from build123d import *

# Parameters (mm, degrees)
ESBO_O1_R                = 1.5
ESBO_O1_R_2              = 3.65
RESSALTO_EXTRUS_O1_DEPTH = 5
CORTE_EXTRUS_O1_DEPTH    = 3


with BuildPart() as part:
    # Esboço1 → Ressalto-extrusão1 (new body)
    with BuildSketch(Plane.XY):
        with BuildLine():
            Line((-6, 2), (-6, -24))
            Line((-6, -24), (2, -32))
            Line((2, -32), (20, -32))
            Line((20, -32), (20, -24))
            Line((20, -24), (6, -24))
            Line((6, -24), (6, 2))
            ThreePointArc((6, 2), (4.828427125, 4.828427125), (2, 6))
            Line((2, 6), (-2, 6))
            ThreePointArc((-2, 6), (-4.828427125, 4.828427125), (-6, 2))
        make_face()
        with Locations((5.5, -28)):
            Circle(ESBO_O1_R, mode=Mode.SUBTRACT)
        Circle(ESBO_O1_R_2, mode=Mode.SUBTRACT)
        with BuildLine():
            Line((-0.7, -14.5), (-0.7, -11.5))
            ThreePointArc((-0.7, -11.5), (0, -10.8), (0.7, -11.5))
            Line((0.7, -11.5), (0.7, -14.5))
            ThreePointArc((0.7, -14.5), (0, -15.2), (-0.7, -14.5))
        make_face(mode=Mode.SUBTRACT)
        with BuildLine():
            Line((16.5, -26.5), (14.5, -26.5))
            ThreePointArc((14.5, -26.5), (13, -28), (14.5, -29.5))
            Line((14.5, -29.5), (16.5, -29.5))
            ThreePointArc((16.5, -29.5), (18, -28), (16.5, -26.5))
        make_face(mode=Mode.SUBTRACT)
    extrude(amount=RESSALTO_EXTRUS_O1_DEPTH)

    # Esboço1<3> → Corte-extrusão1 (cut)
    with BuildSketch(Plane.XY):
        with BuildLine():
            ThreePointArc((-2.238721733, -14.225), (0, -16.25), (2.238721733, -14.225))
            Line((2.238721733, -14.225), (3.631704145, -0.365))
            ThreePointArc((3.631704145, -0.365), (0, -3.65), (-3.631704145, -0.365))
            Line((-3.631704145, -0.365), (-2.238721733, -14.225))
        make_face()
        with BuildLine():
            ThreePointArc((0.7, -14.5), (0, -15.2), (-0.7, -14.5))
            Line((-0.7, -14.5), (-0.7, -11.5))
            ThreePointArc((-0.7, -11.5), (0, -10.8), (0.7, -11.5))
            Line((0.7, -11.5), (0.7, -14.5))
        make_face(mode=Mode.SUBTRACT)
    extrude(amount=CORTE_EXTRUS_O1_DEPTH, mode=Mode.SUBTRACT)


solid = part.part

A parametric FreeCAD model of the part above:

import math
import FreeCAD as App
import Part
import Sketcher

V = App.Vector

doc = App.newDocument("Part")
body = doc.addObject("PartDesign::Body", "Body")

sketch1 = body.newObject("Sketcher::SketchObject", "Sketch")
sketch1.AttachmentSupport = (doc.getObject("XY_Plane"), [""])
sketch1.MapMode = "FlatFace"
sketch1.addGeometry(Part.LineSegment(V(-6, 2, 0), V(-6, -24, 0)), False)
sketch1.addGeometry(Part.LineSegment(V(-6, -24, 0), V(2, -32, 0)), False)
sketch1.addGeometry(Part.LineSegment(V(2, -32, 0), V(20, -32, 0)), False)
sketch1.addGeometry(Part.LineSegment(V(20, -32, 0), V(20, -24, 0)), False)
sketch1.addGeometry(Part.LineSegment(V(20, -24, 0), V(6, -24, 0)), False)
sketch1.addGeometry(Part.LineSegment(V(6, -24, 0), V(6, 2, 0)), False)
sketch1.addGeometry(Part.ArcOfCircle(Part.Circle(V(2, 2, 0), V(0, 0, 1), 4), math.radians(0), math.radians(90)), False)
sketch1.addGeometry(Part.LineSegment(V(2, 6, 0), V(-2, 6, 0)), False)
sketch1.addGeometry(Part.ArcOfCircle(Part.Circle(V(-2, 2, 0), V(0, 0, 1), 4), math.radians(90), math.radians(180)), False)
sketch1.addGeometry(Part.Circle(V(5.5, -28, 0), V(0, 0, 1), 1.5), False)
sketch1.addGeometry(Part.ArcOfCircle(Part.Circle(V(0, -14.5, 0), V(0, 0, 1), 0.7), math.radians(180), math.radians(360)), False)
sketch1.addGeometry(Part.LineSegment(V(-0.7, -14.5, 0), V(-0.7, -11.5, 0)), False)
sketch1.addGeometry(Part.ArcOfCircle(Part.Circle(V(0, -11.5, 0), V(0, 0, 1), 0.7), math.radians(0), math.radians(180)), False)
sketch1.addGeometry(Part.LineSegment(V(0.7, -11.5, 0), V(0.7, -14.5, 0)), False)
sketch1.addGeometry(Part.LineSegment(V(14.5, -26.5, 0), V(16.5, -26.5, 0)), False)
sketch1.addGeometry(Part.ArcOfCircle(Part.Circle(V(16.5, -28, 0), V(0, 0, 1), 1.5), math.radians(-90), math.radians(90)), False)
sketch1.addGeometry(Part.LineSegment(V(16.5, -29.5, 0), V(14.5, -29.5, 0)), False)
sketch1.addGeometry(Part.ArcOfCircle(Part.Circle(V(14.5, -28, 0), V(0, 0, 1), 1.5), math.radians(90), math.radians(270)), False)
sketch1.addGeometry(Part.Circle(V(0, 0, 0), V(0, 0, 1), 3.6), False)
sketch1.addConstraint(Sketcher.Constraint("Coincident", 0, 2, 1, 1))
sketch1.addConstraint(Sketcher.Constraint("Coincident", 1, 2, 2, 1))
sketch1.addConstraint(Sketcher.Constraint("Coincident", 2, 2, 3, 1))
sketch1.addConstraint(Sketcher.Constraint("Coincident", 3, 2, 4, 1))
sketch1.addConstraint(Sketcher.Constraint("Coincident", 4, 2, 5, 1))
sketch1.addConstraint(Sketcher.Constraint("Tangent", 5, 2, 6, 1))
sketch1.addConstraint(Sketcher.Constraint("Tangent", 6, 2, 7, 1))
sketch1.addConstraint(Sketcher.Constraint("Tangent", 7, 2, 8, 1))
sketch1.addConstraint(Sketcher.Constraint("Tangent", 8, 2, 0, 1))
sketch1.addConstraint(Sketcher.Constraint("Tangent", 10, 1, 11, 1))
sketch1.addConstraint(Sketcher.Constraint("Tangent", 11, 2, 12, 2))
sketch1.addConstraint(Sketcher.Constraint("Tangent", 12, 1, 13, 1))
sketch1.addConstraint(Sketcher.Constraint("Tangent", 13, 2, 10, 2))
sketch1.addConstraint(Sketcher.Constraint("Tangent", 14, 2, 15, 2))
sketch1.addConstraint(Sketcher.Constraint("Tangent", 15, 1, 16, 1))
sketch1.addConstraint(Sketcher.Constraint("Tangent", 16, 2, 17, 2))
sketch1.addConstraint(Sketcher.Constraint("Tangent", 17, 1, 14, 1))
sketch1.addConstraint(Sketcher.Constraint("Vertical", 0))
sketch1.addConstraint(Sketcher.Constraint("Horizontal", 2))
sketch1.addConstraint(Sketcher.Constraint("Vertical", 3))
sketch1.addConstraint(Sketcher.Constraint("Horizontal", 4))
sketch1.addConstraint(Sketcher.Constraint("Vertical", 5))
sketch1.addConstraint(Sketcher.Constraint("Horizontal", 7))
sketch1.addConstraint(Sketcher.Constraint("Vertical", 11))
sketch1.addConstraint(Sketcher.Constraint("Vertical", 13))
sketch1.addConstraint(Sketcher.Constraint("Horizontal", 14))
sketch1.addConstraint(Sketcher.Constraint("Horizontal", 16))
sketch1.addConstraint(Sketcher.Constraint("Coincident", 18, 3, -1, 1))
sketch1.addConstraint(Sketcher.Constraint("Equal", 6, 8))
sketch1.addConstraint(Sketcher.Constraint("Equal", 9, 15))
sketch1.addConstraint(Sketcher.Constraint("Symmetric", 0, 2, 4, 2, -2))
sketch1.addConstraint(Sketcher.Constraint("PointOnObject", 10, 3, -2))
sketch1.addConstraint(Sketcher.Constraint("Horizontal", 9, 3, 15, 3))
sketch1.addConstraint(Sketcher.Constraint("Vertical", 6, 3, 1, 2))
sketch1.addConstraint(Sketcher.Constraint("Diameter", 9, 3.0))
sketch1.addConstraint(Sketcher.Constraint("Radius", 6, 4.0))
sketch1.addConstraint(Sketcher.Constraint("Diameter", 18, 7.3))
sketch1.addConstraint(Sketcher.Constraint("Radius", 10, 0.7))
sketch1.addConstraint(Sketcher.Constraint("DistanceX", 2, 1, 2, 2, 18.0))
sketch1.addConstraint(Sketcher.Constraint("DistanceX", 7, 2, 7, 1, 4.0))
sketch1.addConstraint(Sketcher.Constraint("DistanceX", 14, 1, 14, 2, 2.0))
sketch1.addConstraint(Sketcher.Constraint("DistanceY", 0, 2, 0, 1, 26.0))
sketch1.addConstraint(Sketcher.Constraint("DistanceY", 3, 1, 3, 2, 8.0))
sketch1.addConstraint(Sketcher.Constraint("DistanceY", 11, 1, 11, 2, 3.0))
sketch1.addConstraint(Sketcher.Constraint("DistanceY", -1, 1, 6, 3, 2.0))
sketch1.addConstraint(Sketcher.Constraint("DistanceY", 9, 3, -1, 1, 28.0))
sketch1.addConstraint(Sketcher.Constraint("DistanceX", 9, 3, 15, 3, 11.0))
sketch1.addConstraint(Sketcher.Constraint("DistanceX", -1, 1, 9, 3, 5.5))
sketch1.addConstraint(Sketcher.Constraint("DistanceY", 10, 3, -1, 1, 14.5))
pad1 = body.newObject("PartDesign::Pad", "Pad")
pad1.Profile = sketch1
pad1.Length = 5

sketch2 = body.newObject("Sketcher::SketchObject", "Sketch001")
sketch2.AttachmentSupport = (doc.getObject("XY_Plane"), [""])
sketch2.MapMode = "FlatFace"
sketch2.addGeometry(Part.ArcOfCircle(Part.Circle(V(0, -14, 0), V(0, 0, 1), 2.2), math.radians(-174), math.radians(-6)), False)
sketch2.addGeometry(Part.LineSegment(V(2.2, -14.2, 0), V(3.6, -0.4, 0)), False)
sketch2.addGeometry(Part.ArcOfCircle(Part.Circle(V(0, 0, 0), V(0, 0, 1), 3.6), math.radians(-174), math.radians(-6)), False)
sketch2.addGeometry(Part.LineSegment(V(-3.6, -0.4, 0), V(-2.2, -14.2, 0)), False)
sketch2.addGeometry(Part.LineSegment(V(0.7, -11.5, 0), V(0.7, -14.5, 0)), False)
sketch2.addGeometry(Part.ArcOfCircle(Part.Circle(V(0, -14.5, 0), V(0, 0, 1), 0.7), math.radians(180), math.radians(360)), False)
sketch2.addGeometry(Part.LineSegment(V(-0.7, -14.5, 0), V(-0.7, -11.5, 0)), False)
sketch2.addGeometry(Part.ArcOfCircle(Part.Circle(V(0, -11.5, 0), V(0, 0, 1), 0.7), math.radians(0), math.radians(180)), False)
sketch2.addConstraint(Sketcher.Constraint("Tangent", 0, 2, 1, 1))
sketch2.addConstraint(Sketcher.Constraint("Tangent", 1, 2, 2, 2))
sketch2.addConstraint(Sketcher.Constraint("Tangent", 2, 1, 3, 1))
sketch2.addConstraint(Sketcher.Constraint("Tangent", 3, 2, 0, 1))
sketch2.addConstraint(Sketcher.Constraint("Tangent", 4, 2, 5, 2))
sketch2.addConstraint(Sketcher.Constraint("Tangent", 5, 1, 6, 1))
sketch2.addConstraint(Sketcher.Constraint("Tangent", 6, 2, 7, 2))
sketch2.addConstraint(Sketcher.Constraint("Tangent", 7, 1, 4, 1))
sketch2.addConstraint(Sketcher.Constraint("Vertical", 4))
sketch2.addConstraint(Sketcher.Constraint("Vertical", 6))
sketch2.addConstraint(Sketcher.Constraint("Coincident", 2, 3, -1, 1))
sketch2.addConstraint(Sketcher.Constraint("PointOnObject", 0, 3, -2))
sketch2.addConstraint(Sketcher.Constraint("PointOnObject", 5, 3, -2))
sketch2.addConstraint(Sketcher.Constraint("Radius", 5, 0.7))
sketch2.addConstraint(Sketcher.Constraint("DistanceY", 4, 2, 4, 1, 3.0))
sketch2.addConstraint(Sketcher.Constraint("Radius", 0, 2.25))
sketch2.addConstraint(Sketcher.Constraint("Radius", 2, 3.65))
sketch2.addConstraint(Sketcher.Constraint("DistanceY", 0, 3, -1, 1, 14.0))
sketch2.addConstraint(Sketcher.Constraint("DistanceY", 5, 3, -1, 1, 14.5))
pocket1 = body.newObject("PartDesign::Pocket", "Pocket")
pocket1.Profile = sketch2
pocket1.Length = 3
pocket1.Reversed = True

doc.recompute()
